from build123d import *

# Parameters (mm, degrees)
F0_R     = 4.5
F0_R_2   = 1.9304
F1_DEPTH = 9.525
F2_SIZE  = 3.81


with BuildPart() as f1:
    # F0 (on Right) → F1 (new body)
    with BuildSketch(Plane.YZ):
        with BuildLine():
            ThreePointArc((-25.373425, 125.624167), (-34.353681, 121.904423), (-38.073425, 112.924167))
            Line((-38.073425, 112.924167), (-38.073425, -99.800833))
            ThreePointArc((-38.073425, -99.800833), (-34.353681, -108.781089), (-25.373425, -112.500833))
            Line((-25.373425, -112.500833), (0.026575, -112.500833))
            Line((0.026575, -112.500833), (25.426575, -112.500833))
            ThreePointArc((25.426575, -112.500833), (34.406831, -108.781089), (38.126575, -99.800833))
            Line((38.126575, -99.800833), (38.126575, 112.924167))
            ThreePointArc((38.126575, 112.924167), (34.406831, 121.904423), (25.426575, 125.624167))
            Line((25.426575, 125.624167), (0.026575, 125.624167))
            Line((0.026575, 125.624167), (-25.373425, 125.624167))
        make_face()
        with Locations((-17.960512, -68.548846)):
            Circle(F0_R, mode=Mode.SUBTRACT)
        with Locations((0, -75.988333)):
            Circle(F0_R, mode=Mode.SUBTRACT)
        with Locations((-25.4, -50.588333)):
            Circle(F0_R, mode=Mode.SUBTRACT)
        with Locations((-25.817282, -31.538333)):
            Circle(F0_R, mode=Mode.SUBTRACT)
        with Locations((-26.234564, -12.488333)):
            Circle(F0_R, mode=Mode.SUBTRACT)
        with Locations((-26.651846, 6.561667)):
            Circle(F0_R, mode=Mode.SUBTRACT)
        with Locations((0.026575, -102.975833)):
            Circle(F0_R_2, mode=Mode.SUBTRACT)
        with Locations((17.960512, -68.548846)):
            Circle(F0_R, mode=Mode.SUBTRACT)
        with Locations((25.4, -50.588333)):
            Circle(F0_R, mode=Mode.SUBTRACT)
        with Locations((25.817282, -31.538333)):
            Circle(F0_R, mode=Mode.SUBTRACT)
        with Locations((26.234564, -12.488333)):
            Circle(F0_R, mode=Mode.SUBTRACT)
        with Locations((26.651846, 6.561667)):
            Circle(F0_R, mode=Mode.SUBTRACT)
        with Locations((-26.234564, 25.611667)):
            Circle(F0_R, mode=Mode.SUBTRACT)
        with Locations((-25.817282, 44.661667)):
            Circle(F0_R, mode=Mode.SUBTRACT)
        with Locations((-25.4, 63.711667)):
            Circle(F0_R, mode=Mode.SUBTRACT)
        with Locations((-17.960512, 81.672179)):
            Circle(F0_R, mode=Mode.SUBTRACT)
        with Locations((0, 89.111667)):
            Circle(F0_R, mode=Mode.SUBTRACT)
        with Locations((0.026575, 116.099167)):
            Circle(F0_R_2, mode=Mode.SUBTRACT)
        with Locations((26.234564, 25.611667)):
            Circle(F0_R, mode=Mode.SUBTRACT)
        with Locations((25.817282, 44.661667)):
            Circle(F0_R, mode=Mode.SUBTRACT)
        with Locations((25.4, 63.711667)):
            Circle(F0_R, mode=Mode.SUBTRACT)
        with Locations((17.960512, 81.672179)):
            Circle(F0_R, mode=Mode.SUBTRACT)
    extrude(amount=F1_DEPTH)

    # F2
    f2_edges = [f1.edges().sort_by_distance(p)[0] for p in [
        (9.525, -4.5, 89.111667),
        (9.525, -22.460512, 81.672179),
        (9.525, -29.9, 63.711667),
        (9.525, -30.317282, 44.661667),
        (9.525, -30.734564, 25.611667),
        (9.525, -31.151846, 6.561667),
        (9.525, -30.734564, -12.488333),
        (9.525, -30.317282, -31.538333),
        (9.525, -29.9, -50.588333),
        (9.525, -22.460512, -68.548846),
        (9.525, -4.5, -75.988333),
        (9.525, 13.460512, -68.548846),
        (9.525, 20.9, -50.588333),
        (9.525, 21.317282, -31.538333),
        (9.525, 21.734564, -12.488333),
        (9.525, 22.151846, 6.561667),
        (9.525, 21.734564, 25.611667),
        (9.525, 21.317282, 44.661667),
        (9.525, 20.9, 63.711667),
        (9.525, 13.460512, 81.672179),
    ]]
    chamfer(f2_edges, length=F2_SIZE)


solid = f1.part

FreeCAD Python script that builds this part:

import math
import FreeCAD as App
import Part
import Sketcher

V = App.Vector
Q = App.Units.Quantity


def edges_at(feature, points):
    """Names of the edges that pass closest to the given points."""
    edges = feature.Shape.Edges
    near = lambda p: min(range(len(edges)), key=lambda i: edges[i].distToShape(Part.Vertex(*p))[0])
    return sorted({f"Edge{near(p) + 1}" for p in points})

doc = App.newDocument("Part")
body = doc.addObject("PartDesign::Body", "Body")

sketch1 = doc.addObject("Sketcher::SketchObject", "Sketch")
body.addObject(sketch1)
sketch1.AttachmentSupport = (doc.YZ_Plane, [""])
sketch1.MapMode = "FlatFace"
sketch1.addGeometry(Part.ArcOfCircle(Part.Circle(V(-25.373425, 112.924167, 0), V(0, 0, 1), 12.7), math.radians(90.000002), math.radians(179.999998)), False)
sketch1.addGeometry(Part.LineSegment(V(-38.073425, 112.924167, 0), V(-38.073425, -99.800833, 0)), False)
sketch1.addGeometry(Part.ArcOfCircle(Part.Circle(V(-25.373425, -99.800833, 0), V(0, 0, 1), 12.7), math.radians(-179.999998), math.radians(-90.000002)), False)
sketch1.addGeometry(Part.LineSegment(V(-25.373425, -112.500833, 0), V(25.426575, -112.500833, 0)), False)
sketch1.addGeometry(Part.ArcOfCircle(Part.Circle(V(25.426575, -99.800833, 0), V(0, 0, 1), 12.7), math.radians(-89.999998), math.radians(-0.000002)), False)
sketch1.addGeometry(Part.LineSegment(V(38.126575, -99.800833, 0), V(38.126575, 112.924167, 0)), False)
sketch1.addGeometry(Part.ArcOfCircle(Part.Circle(V(25.426575, 112.924167, 0), V(0, 0, 1), 12.7), math.radians(0.000002), math.radians(89.999998)), False)
sketch1.addGeometry(Part.LineSegment(V(25.426575, 125.624167, 0), V(-25.373425, 125.624167, 0)), False)
sketch1.addGeometry(Part.Circle(V(-25.4, -50.588333, 0), V(0, 0, 1), 4.5), False)
sketch1.addGeometry(Part.Circle(V(-17.960512, -68.548846, 0), V(0, 0, 1), 4.5), False)
sketch1.addGeometry(Part.Circle(V(-25.817282, -31.538333, 0), V(0, 0, 1), 4.5), False)
sketch1.addGeometry(Part.Circle(V(-26.234564, -12.488333, 0), V(0, 0, 1), 4.5), False)
sketch1.addGeometry(Part.Circle(V(0.026575, -102.975833, 0), V(0, 0, 1), 1.9304), False)
sketch1.addGeometry(Part.Circle(V(0, -75.988333, 0), V(0, 0, 1), 4.5), False)
sketch1.addGeometry(Part.Circle(V(17.960512, -68.548846, 0), V(0, 0, 1), 4.5), False)
sketch1.addGeometry(Part.Circle(V(25.4, -50.588333, 0), V(0, 0, 1), 4.5), False)
sketch1.addGeometry(Part.Circle(V(25.817282, -31.538333, 0), V(0, 0, 1), 4.5), False)
sketch1.addGeometry(Part.Circle(V(26.234564, -12.488333, 0), V(0, 0, 1), 4.5), False)
sketch1.addGeometry(Part.Circle(V(-26.651846, 6.561667, 0), V(0, 0, 1), 4.5), False)
sketch1.addGeometry(Part.Circle(V(-26.234564, 25.611667, 0), V(0, 0, 1), 4.5), False)
sketch1.addGeometry(Part.Circle(V(-25.817282, 44.661667, 0), V(0, 0, 1), 4.5), False)
sketch1.addGeometry(Part.Circle(V(-25.4, 63.711667, 0), V(0, 0, 1), 4.5), False)
sketch1.addGeometry(Part.Circle(V(-17.960512, 81.672179, 0), V(0, 0, 1), 4.5), False)
sketch1.addGeometry(Part.Circle(V(26.651846, 6.561667, 0), V(0, 0, 1), 4.5), False)
sketch1.addGeometry(Part.Circle(V(26.234564, 25.611667, 0), V(0, 0, 1), 4.5), False)
sketch1.addGeometry(Part.Circle(V(25.817282, 44.661667, 0), V(0, 0, 1), 4.5), False)
sketch1.addGeometry(Part.Circle(V(0, 89.111667, 0), V(0, 0, 1), 4.5), False)
sketch1.addGeometry(Part.Circle(V(0.026575, 116.099167, 0), V(0, 0, 1), 1.9304), False)
sketch1.addGeometry(Part.Circle(V(17.960512, 81.672179, 0), V(0, 0, 1), 4.5), False)
sketch1.addGeometry(Part.Circle(V(25.4, 63.711667, 0), V(0, 0, 1), 4.5), False)
sketch1.addConstraint(Sketcher.Constraint("Tangent", 0, 2, 1, 1))
sketch1.addConstraint(Sketcher.Constraint("Tangent", 1, 2, 2, 1))
sketch1.addConstraint(Sketcher.Constraint("Tangent", 2, 2, 3, 1))
sketch1.addConstraint(Sketcher.Constraint("Tangent", 3, 2, 4, 1))
sketch1.addConstraint(Sketcher.Constraint("Tangent", 4, 2, 5, 1))
sketch1.addConstraint(Sketcher.Constraint("Tangent", 5, 2, 6, 1))
sketch1.addConstraint(Sketcher.Constraint("Tangent", 6, 2, 7, 1))
sketch1.addConstraint(Sketcher.Constraint("Tangent", 7, 2, 0, 1))
sketch1.addConstraint(Sketcher.Constraint("Vertical", 1))
sketch1.addConstraint(Sketcher.Constraint("Horizontal", 3))
sketch1.addConstraint(Sketcher.Constraint("Vertical", 5))
sketch1.addConstraint(Sketcher.Constraint("Horizontal", 7))
sketch1.addConstraint(Sketcher.Constraint("Equal", 0, 2))
sketch1.addConstraint(Sketcher.Constraint("Equal", 2, 4))
sketch1.addConstraint(Sketcher.Constraint("Equal", 4, 6))
sketch1.addConstraint(Sketcher.Constraint("Equal", 8, 9))
sketch1.addConstraint(Sketcher.Constraint("Equal", 9, 10))
sketch1.addConstraint(Sketcher.Constraint("Equal", 10, 11))
sketch1.addConstraint(Sketcher.Constraint("Equal", 11, 13))
sketch1.addConstraint(Sketcher.Constraint("Equal", 13, 14))
sketch1.addConstraint(Sketcher.Constraint("Equal", 14, 15))
sketch1.addConstraint(Sketcher.Constraint("Equal", 15, 16))
sketch1.addConstraint(Sketcher.Constraint("Equal", 16, 17))
sketch1.addConstraint(Sketcher.Constraint("Equal", 17, 18))
sketch1.addConstraint(Sketcher.Constraint("Equal", 18, 19))
sketch1.addConstraint(Sketcher.Constraint("Equal", 19, 20))
sketch1.addConstraint(Sketcher.Constraint("Equal", 20, 21))
sketch1.addConstraint(Sketcher.Constraint("Equal", 21, 22))
sketch1.addConstraint(Sketcher.Constraint("Equal", 22, 23))
sketch1.addConstraint(Sketcher.Constraint("Equal", 23, 24))
sketch1.addConstraint(Sketcher.Constraint("Equal", 24, 25))
sketch1.addConstraint(Sketcher.Constraint("Equal", 25, 26))
sketch1.addConstraint(Sketcher.Constraint("Equal", 12, 27))
sketch1.addConstraint(Sketcher.Constraint("Equal", 26, 28))
sketch1.addConstraint(Sketcher.Constraint("Equal", 28, 29))
sketch1.addConstraint(Sketcher.Constraint("Symmetric", 9, 3, 14, 3, -2))
sketch1.addConstraint(Sketcher.Constraint("Symmetric", 8, 3, 15, 3, -2))
sketch1.addConstraint(Sketcher.Constraint("Symmetric", 10, 3, 16, 3, -2))
sketch1.addConstraint(Sketcher.Constraint("Symmetric", 11, 3, 17, 3, -2))
sketch1.addConstraint(Sketcher.Constraint("Symmetric", 18, 3, 23, 3, -2))
sketch1.addConstraint(Sketcher.Constraint("Symmetric", 19, 3, 24, 3, -2))
sketch1.addConstraint(Sketcher.Constraint("Symmetric", 20, 3, 25, 3, -2))
sketch1.addConstraint(Sketcher.Constraint("Symmetric", 22, 3, 28, 3, -2))
sketch1.addConstraint(Sketcher.Constraint("Symmetric", 21, 3, 29, 3, -2))
sketch1.addConstraint(Sketcher.Constraint("PointOnObject", 13, 3, -2))
sketch1.addConstraint(Sketcher.Constraint("PointOnObject", 26, 3, -2))
sketch1.addConstraint(Sketcher.Constraint("Vertical", 11, 3, 19, 3))
sketch1.addConstraint(Sketcher.Constraint("Vertical", 10, 3, 20, 3))
sketch1.addConstraint(Sketcher.Constraint("Vertical", 8, 3, 21, 3))
sketch1.addConstraint(Sketcher.Constraint("Vertical", 9, 3, 22, 3))
sketch1.addConstraint(Sketcher.Constraint("Vertical", 12, 3, 27, 3))
sketch1.addConstraint(Sketcher.Constraint("Radius", 0, Q("0.5 in")))
sketch1.addConstraint(Sketcher.Constraint("DistanceX", 3, 1, 3, 2, Q("2 in")))
sketch1.addConstraint(Sketcher.Constraint("Diameter", 12, Q("0.152 in")))
sketch1.addConstraint(Sketcher.Constraint("DistanceX", 8, 3, -1, 1, Q("1 in")))
sketch1.addConstraint(Sketcher.Constraint("DistanceX", 2, 3, 12, 3, Q("1 in")))
sketch1.addConstraint(Sketcher.Constraint("DistanceY", 13, 3, 8, 3, Q("1 in")))
sketch1.addConstraint(Sketcher.Constraint("DistanceY", 8, 3, 19, 3, Q("3 in")))
sketch1.addConstraint(Sketcher.Constraint("DistanceY", 10, 3, 20, 3, Q("3 in")))
sketch1.addConstraint(Sketcher.Constraint("DistanceY", 21, 3, 26, 3, Q("1 in")))
sketch1.addConstraint(Sketcher.Constraint("DistanceY", 8, 3, 11, 3, Q("1.5 in")))
sketch1.addConstraint(Sketcher.Constraint("DistanceY", 10, 3, 18, 3, Q("1.5 in")))
sketch1.addConstraint(Sketcher.Constraint("DistanceY", 19, 3, 21, 3, Q("1.5 in")))
sketch1.addConstraint(Sketcher.Constraint("Diameter", 8, 9.0))
sketch1.addConstraint(Sketcher.Constraint("DistanceY", 1, 2, 1, 1, Q("8.375 in")))
sketch1.addConstraint(Sketcher.Constraint("DistanceY", 8, 3, 10, 3, Q("0.75 in")))
sketch1.addConstraint(Sketcher.Constraint("DistanceY", 2, 3, 8, 3, Q("1.9375 in")))
sketch1.addConstraint(Sketcher.Constraint("DistanceY", 12, 3, 2, 3, Q("0.125 in")))
sketch1.addConstraint(Sketcher.Constraint("DistanceY", 0, 3, 27, 3, Q("0.125 in")))
sketch1.addConstraint(Sketcher.Constraint("DistanceX", 10, 3, -1, 1, 25.817282))
sketch1.addConstraint(Sketcher.Constraint("DistanceY", -1, 1, 22, 3, 81.672179))
sketch1.addConstraint(Sketcher.Constraint("DistanceX", 10, 3, 9, 3, 7.85677))
sketch1.addConstraint(Sketcher.Constraint("DistanceX", 11, 3, 9, 3, 8.274052))
sketch1.addConstraint(Sketcher.Constraint("DistanceX", 11, 3, 2, 3, 0.861139))
sketch1.addConstraint(Sketcher.Constraint("DistanceX", 18, 3, 17, 3, 52.88641))
sketch1.addConstraint(Sketcher.Constraint("DistanceY", -1, 1, 0, 3, 112.924167))
sketch1.addConstraint(Sketcher.Constraint("DistanceY", 9, 3, -1, 1, 68.548846))
pad1 = doc.addObject("PartDesign::Pad", "Pad")
body.addObject(pad1)
pad1.Profile = sketch1
pad1.Length = Q("0.375 in")
doc.recompute()

chamfer = doc.addObject("PartDesign::Chamfer", "Chamfer")
body.addObject(chamfer)
chamfer.Base = (pad1, edges_at(pad1, [
    (9.525, -4.5, 89.112),
    (9.525, -22.461, 81.672),
    (9.525, -29.9, 63.712),
    (9.525, -30.317, 44.662),
    (9.525, -30.735, 25.612),
    (9.525, -31.152, 6.562),
    (9.525, -30.735, -12.488),
    (9.525, -30.317, -31.538),
    (9.525, -29.9, -50.588),
    (9.525, -22.461, -68.549),
    (9.525, -4.5, -75.988),
    (9.525, 13.461, -68.549),
    (9.525, 20.9, -50.588),
    (9.525, 21.317, -31.538),
    (9.525, 21.735, -12.488),
    (9.525, 22.152, 6.562),
    (9.525, 21.735, 25.612),
    (9.525, 21.317, 44.662),
    (9.525, 20.9, 63.712),
    (9.525, 13.461, 81.672),
]))
chamfer.Size = Q("0.15 in")

doc.recompute()
